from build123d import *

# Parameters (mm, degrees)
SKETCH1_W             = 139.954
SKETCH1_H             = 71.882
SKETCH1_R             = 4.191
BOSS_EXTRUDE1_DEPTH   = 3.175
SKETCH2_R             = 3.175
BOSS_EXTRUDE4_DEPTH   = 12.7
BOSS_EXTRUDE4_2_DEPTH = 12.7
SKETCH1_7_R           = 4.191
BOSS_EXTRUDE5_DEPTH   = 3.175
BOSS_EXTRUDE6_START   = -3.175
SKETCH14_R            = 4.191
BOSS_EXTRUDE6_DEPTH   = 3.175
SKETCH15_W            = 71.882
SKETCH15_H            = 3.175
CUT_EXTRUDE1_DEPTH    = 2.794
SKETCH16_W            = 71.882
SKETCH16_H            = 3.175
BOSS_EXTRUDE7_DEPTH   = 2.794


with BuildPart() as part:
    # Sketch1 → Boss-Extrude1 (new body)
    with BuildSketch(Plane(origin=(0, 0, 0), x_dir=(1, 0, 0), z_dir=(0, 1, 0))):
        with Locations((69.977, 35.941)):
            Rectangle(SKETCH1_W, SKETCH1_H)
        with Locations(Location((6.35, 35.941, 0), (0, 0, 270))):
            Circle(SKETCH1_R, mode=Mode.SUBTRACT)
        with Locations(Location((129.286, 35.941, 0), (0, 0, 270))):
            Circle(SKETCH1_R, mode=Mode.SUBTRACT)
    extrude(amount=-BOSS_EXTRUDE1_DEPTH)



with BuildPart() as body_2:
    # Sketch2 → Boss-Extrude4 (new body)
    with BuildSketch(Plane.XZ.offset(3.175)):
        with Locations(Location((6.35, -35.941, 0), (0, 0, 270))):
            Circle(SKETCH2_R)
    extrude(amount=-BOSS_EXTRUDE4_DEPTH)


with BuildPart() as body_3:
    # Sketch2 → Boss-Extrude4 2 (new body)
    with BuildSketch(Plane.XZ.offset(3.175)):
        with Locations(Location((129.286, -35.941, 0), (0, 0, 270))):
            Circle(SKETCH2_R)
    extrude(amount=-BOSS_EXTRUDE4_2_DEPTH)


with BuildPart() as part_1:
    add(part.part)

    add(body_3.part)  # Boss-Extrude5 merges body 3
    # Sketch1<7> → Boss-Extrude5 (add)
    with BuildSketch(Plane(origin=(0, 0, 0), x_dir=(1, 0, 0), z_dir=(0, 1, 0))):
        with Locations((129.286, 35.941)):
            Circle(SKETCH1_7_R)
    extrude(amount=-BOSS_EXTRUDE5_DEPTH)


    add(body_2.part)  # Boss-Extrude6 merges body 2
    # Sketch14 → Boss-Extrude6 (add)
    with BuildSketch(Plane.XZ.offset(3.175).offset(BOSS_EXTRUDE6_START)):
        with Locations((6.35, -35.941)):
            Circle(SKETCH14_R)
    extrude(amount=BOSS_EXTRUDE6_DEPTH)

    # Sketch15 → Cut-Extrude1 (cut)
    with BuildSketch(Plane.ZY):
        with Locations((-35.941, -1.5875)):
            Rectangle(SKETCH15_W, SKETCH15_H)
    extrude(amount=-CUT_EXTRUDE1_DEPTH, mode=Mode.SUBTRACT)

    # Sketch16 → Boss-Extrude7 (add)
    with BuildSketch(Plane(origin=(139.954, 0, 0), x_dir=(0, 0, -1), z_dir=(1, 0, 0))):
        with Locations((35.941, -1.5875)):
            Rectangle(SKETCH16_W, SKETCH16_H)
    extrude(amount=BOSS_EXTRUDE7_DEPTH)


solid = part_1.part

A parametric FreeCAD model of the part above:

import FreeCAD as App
import Part
import Sketcher
Q = App.Units.Quantity


def add_polygon(sketch, points):
    """Adds a closed chain of lines whose ends are joined by coincident constraints."""
    first, n = sketch.GeometryCount, len(points)
    for a, b in zip(points, points[1:] + points[:1]):
        sketch.addGeometry(Part.LineSegment(App.Vector(*a, 0), App.Vector(*b, 0)), False)
    for i in range(n):
        sketch.addConstraint(Sketcher.Constraint("Coincident", first + i, 2, first + (i + 1) % n, 1))

doc = App.newDocument("Part")
params = doc.addObject("Spreadsheet::Sheet", "Params")
for row, (alias, value) in enumerate([
    ("sketch1_diameter", "0.33 in"),
    ("sketch1_width", "5.51 in"),
    ("sketch1_height", "2.83 in"),
    ("pad1_length", "0.125 in"),
    ("sketch2_diameter", "0.25 in"),
    ("pad2_length", "0.5 in"),
    ("sketch3_diameter", "0.25 in"),
    ("pad3_length", "0.5 in"),
    ("sketch4_diameter", "0.33 in"),
    ("pad4_length", "0.125 in"),
    ("sketch5_diameter", "0.33 in"),
    ("pad5_length", "0.125 in"),
    ("sketch6_height", "2.83 in"),
    ("sketch6_width", "0.125 in"),
    ("pocket1_length", "0.11 in"),
    ("sketch7_height", "2.83 in"),
    ("sketch7_width", "0.125 in"),
    ("pad6_length", "0.11 in"),
], start=1):
    params.set(f"A{row}", alias)
    params.set(f"B{row}", "=" + value)
    params.setAlias(f"B{row}", alias)

body = doc.addObject("PartDesign::Body", "Body")

sketch1 = doc.addObject("Sketcher::SketchObject", "Sketch")
body.addObject(sketch1)
sketch1.AttachmentSupport = (doc.XZ_Plane, [""])
sketch1.MapMode = "FlatFace"
add_polygon(sketch1, [(0, -71.882), (0, 0), (139.954, 0), (139.954, -71.882)])
sketch1.addGeometry(Part.Circle(App.Vector(6.35, -35.941, 0), App.Vector(0, 0, 1), 4.191), False)
sketch1.addGeometry(Part.Circle(App.Vector(129.286, -35.941, 0), App.Vector(0, 0, 1), 4.191), False)
sketch1.addConstraint(Sketcher.Constraint("Vertical", 0))
sketch1.addConstraint(Sketcher.Constraint("Horizontal", 1))
sketch1.addConstraint(Sketcher.Constraint("Vertical", 2))
sketch1.addConstraint(Sketcher.Constraint("Horizontal", 3))
sketch1.addConstraint(Sketcher.Constraint("Coincident", 0, 2, -1, 1))
sketch1.addConstraint(Sketcher.Constraint("Equal", 4, 5))
sketch1.addConstraint(Sketcher.Constraint("Horizontal", 4, 3, 5, 3))
sketch1.addConstraint(Sketcher.Constraint("Diameter", 4, Q("0.33 in")))
sketch1.addConstraint(Sketcher.Constraint("DistanceX", 1, 1, 1, 2, Q("5.51 in")))
sketch1.addConstraint(Sketcher.Constraint("DistanceY", 0, 1, 0, 2, Q("2.83 in")))
sketch1.addConstraint(Sketcher.Constraint("DistanceX", -1, 1, 4, 3, Q("0.25 in")))
sketch1.addConstraint(Sketcher.Constraint("DistanceX", -1, 1, 5, 3, Q("5.09 in")))
sketch1.addConstraint(Sketcher.Constraint("DistanceY", 4, 3, -1, 1, Q("1.415 in")))
sketch1.setExpression("Constraints[11]", "Params.sketch1_diameter")
sketch1.setExpression("Constraints[12]", "Params.sketch1_width")
sketch1.setExpression("Constraints[13]", "Params.sketch1_height")
pad1 = doc.addObject("PartDesign::Pad", "Pad")
body.addObject(pad1)
pad1.Profile = sketch1
pad1.setExpression("Length", "Params.pad1_length")
body2 = doc.addObject("PartDesign::Body", "Body001")

sketch2 = doc.addObject("Sketcher::SketchObject", "Sketch001")
body2.addObject(sketch2)
sketch2.AttachmentSupport = (doc.getObject("XZ_Plane001"), [""])
sketch2.MapMode = "FlatFace"
sketch2.AttachmentOffset = App.Placement(App.Vector(0, 0, 0.125 * 25.4), App.Rotation())
sketch2.addGeometry(Part.Circle(App.Vector(6.35, -35.941, 0), App.Vector(0, 0, 1), 3.175), False)
sketch2.addConstraint(Sketcher.Constraint("Diameter", 0, Q("0.25 in")))
sketch2.addConstraint(Sketcher.Constraint("DistanceX", -1, 1, 0, 3, Q("0.25 in")))
sketch2.addConstraint(Sketcher.Constraint("DistanceY", 0, 3, -1, 1, Q("1.415 in")))
sketch2.setExpression("Constraints[0]", "Params.sketch2_diameter")
pad2 = doc.addObject("PartDesign::Pad", "Pad001")
body2.addObject(pad2)
pad2.Profile = sketch2
pad2.setExpression("Length", "Params.pad2_length")
pad2.Reversed = True
body3 = doc.addObject("PartDesign::Body", "Body002")

sketch3 = doc.addObject("Sketcher::SketchObject", "Sketch002")
body3.addObject(sketch3)
sketch3.AttachmentSupport = (doc.getObject("XZ_Plane002"), [""])
sketch3.MapMode = "FlatFace"
sketch3.AttachmentOffset = App.Placement(App.Vector(0, 0, 0.125 * 25.4), App.Rotation())
sketch3.addGeometry(Part.Circle(App.Vector(129.286, -35.941, 0), App.Vector(0, 0, 1), 3.175), False)
sketch3.addConstraint(Sketcher.Constraint("Diameter", 0, Q("0.25 in")))
sketch3.addConstraint(Sketcher.Constraint("DistanceX", -1, 1, 0, 3, Q("5.09 in")))
sketch3.addConstraint(Sketcher.Constraint("DistanceY", 0, 3, -1, 1, Q("1.415 in")))
sketch3.setExpression("Constraints[0]", "Params.sketch3_diameter")
pad3 = doc.addObject("PartDesign::Pad", "Pad002")
body3.addObject(pad3)
pad3.Profile = sketch3
pad3.setExpression("Length", "Params.pad3_length")
pad3.Reversed = True
body.AllowCompound = True
doc.recompute()

boolean = doc.addObject("PartDesign::Boolean", "Boolean")
body.addObject(boolean)
boolean.Type = "Fuse"
boolean.addObjects([body3])

sketch4 = doc.addObject("Sketcher::SketchObject", "Sketch003")
body.addObject(sketch4)
sketch4.AttachmentSupport = (doc.XZ_Plane, [""])
sketch4.MapMode = "FlatFace"
sketch4.addGeometry(Part.Circle(App.Vector(129.286, -35.941, 0), App.Vector(0, 0, 1), 4.191), False)
sketch4.addConstraint(Sketcher.Constraint("Diameter", 0, Q("0.33 in")))
sketch4.addConstraint(Sketcher.Constraint("DistanceX", -1, 1, 0, 3, Q("5.09 in")))
sketch4.addConstraint(Sketcher.Constraint("DistanceY", 0, 3, -1, 1, Q("1.415 in")))
sketch4.setExpression("Constraints[0]", "Params.sketch4_diameter")
pad4 = doc.addObject("PartDesign::Pad", "Pad003")
body.addObject(pad4)
pad4.Profile = sketch4
pad4.setExpression("Length", "Params.pad4_length")
doc.recompute()

boolean2 = doc.addObject("PartDesign::Boolean", "Boolean001")
body.addObject(boolean2)
boolean2.Type = "Fuse"
boolean2.addObjects([body2])

sketch5 = doc.addObject("Sketcher::SketchObject", "Sketch004")
body.addObject(sketch5)
sketch5.AttachmentSupport = (doc.XZ_Plane, [""])
sketch5.MapMode = "FlatFace"
sketch5.addGeometry(Part.Circle(App.Vector(6.35, -35.941, 0), App.Vector(0, 0, 1), 4.191), False)
sketch5.addConstraint(Sketcher.Constraint("Diameter", 0, Q("0.33 in")))
sketch5.addConstraint(Sketcher.Constraint("DistanceX", -1, 1, 0, 3, Q("0.25 in")))
sketch5.addConstraint(Sketcher.Constraint("DistanceY", 0, 3, -1, 1, Q("1.415 in")))
sketch5.setExpression("Constraints[0]", "Params.sketch5_diameter")
pad5 = doc.addObject("PartDesign::Pad", "Pad004")
body.addObject(pad5)
pad5.Profile = sketch5
pad5.setExpression("Length", "Params.pad5_length")

sketch6 = doc.addObject("Sketcher::SketchObject", "Sketch005")
body.addObject(sketch6)
sketch6.AttachmentSupport = (doc.YZ_Plane, [""])
sketch6.MapMode = "FlatFace"
add_polygon(sketch6, [(0, -71.882), (-3.175, -71.882), (-3.175, 0), (0, 0)])
sketch6.addConstraint(Sketcher.Constraint("Horizontal", 0))
sketch6.addConstraint(Sketcher.Constraint("Vertical", 1))
sketch6.addConstraint(Sketcher.Constraint("Horizontal", 2))
sketch6.addConstraint(Sketcher.Constraint("Vertical", 3))
sketch6.addConstraint(Sketcher.Constraint("Coincident", 2, 2, -1, 1))
sketch6.addConstraint(Sketcher.Constraint("DistanceY", 1, 1, 1, 2, Q("2.83 in")))
sketch6.addConstraint(Sketcher.Constraint("DistanceX", 0, 2, 0, 1, Q("0.125 in")))
sketch6.setExpression("Constraints[9]", "Params.sketch6_height")
sketch6.setExpression("Constraints[10]", "Params.sketch6_width")
pocket1 = doc.addObject("PartDesign::Pocket", "Pocket")
body.addObject(pocket1)
pocket1.Profile = sketch6
pocket1.setExpression("Length", "Params.pocket1_length")
pocket1.Reversed = True

sketch7 = doc.addObject("Sketcher::SketchObject", "Sketch006")
body.addObject(sketch7)
sketch7.AttachmentSupport = (doc.YZ_Plane, [""])
sketch7.MapMode = "FlatFace"
sketch7.AttachmentOffset = App.Placement(App.Vector(0, 0, 5.51 * 25.4), App.Rotation())
add_polygon(sketch7, [(0, 0), (-3.175, 0), (-3.175, -71.882), (0, -71.882)])
sketch7.addConstraint(Sketcher.Constraint("Horizontal", 0))
sketch7.addConstraint(Sketcher.Constraint("Vertical", 1))
sketch7.addConstraint(Sketcher.Constraint("Horizontal", 2))
sketch7.addConstraint(Sketcher.Constraint("Vertical", 3))
sketch7.addConstraint(Sketcher.Constraint("Coincident", 3, 2, -1, 1))
sketch7.addConstraint(Sketcher.Constraint("DistanceY", 1, 2, 1, 1, Q("2.83 in")))
sketch7.addConstraint(Sketcher.Constraint("DistanceX", 0, 2, 0, 1, Q("0.125 in")))
sketch7.setExpression("Constraints[9]", "Params.sketch7_height")
sketch7.setExpression("Constraints[10]", "Params.sketch7_width")
pad6 = doc.addObject("PartDesign::Pad", "Pad005")
body.addObject(pad6)
pad6.Profile = sketch7
pad6.setExpression("Length", "Params.pad6_length")

doc.recompute()
